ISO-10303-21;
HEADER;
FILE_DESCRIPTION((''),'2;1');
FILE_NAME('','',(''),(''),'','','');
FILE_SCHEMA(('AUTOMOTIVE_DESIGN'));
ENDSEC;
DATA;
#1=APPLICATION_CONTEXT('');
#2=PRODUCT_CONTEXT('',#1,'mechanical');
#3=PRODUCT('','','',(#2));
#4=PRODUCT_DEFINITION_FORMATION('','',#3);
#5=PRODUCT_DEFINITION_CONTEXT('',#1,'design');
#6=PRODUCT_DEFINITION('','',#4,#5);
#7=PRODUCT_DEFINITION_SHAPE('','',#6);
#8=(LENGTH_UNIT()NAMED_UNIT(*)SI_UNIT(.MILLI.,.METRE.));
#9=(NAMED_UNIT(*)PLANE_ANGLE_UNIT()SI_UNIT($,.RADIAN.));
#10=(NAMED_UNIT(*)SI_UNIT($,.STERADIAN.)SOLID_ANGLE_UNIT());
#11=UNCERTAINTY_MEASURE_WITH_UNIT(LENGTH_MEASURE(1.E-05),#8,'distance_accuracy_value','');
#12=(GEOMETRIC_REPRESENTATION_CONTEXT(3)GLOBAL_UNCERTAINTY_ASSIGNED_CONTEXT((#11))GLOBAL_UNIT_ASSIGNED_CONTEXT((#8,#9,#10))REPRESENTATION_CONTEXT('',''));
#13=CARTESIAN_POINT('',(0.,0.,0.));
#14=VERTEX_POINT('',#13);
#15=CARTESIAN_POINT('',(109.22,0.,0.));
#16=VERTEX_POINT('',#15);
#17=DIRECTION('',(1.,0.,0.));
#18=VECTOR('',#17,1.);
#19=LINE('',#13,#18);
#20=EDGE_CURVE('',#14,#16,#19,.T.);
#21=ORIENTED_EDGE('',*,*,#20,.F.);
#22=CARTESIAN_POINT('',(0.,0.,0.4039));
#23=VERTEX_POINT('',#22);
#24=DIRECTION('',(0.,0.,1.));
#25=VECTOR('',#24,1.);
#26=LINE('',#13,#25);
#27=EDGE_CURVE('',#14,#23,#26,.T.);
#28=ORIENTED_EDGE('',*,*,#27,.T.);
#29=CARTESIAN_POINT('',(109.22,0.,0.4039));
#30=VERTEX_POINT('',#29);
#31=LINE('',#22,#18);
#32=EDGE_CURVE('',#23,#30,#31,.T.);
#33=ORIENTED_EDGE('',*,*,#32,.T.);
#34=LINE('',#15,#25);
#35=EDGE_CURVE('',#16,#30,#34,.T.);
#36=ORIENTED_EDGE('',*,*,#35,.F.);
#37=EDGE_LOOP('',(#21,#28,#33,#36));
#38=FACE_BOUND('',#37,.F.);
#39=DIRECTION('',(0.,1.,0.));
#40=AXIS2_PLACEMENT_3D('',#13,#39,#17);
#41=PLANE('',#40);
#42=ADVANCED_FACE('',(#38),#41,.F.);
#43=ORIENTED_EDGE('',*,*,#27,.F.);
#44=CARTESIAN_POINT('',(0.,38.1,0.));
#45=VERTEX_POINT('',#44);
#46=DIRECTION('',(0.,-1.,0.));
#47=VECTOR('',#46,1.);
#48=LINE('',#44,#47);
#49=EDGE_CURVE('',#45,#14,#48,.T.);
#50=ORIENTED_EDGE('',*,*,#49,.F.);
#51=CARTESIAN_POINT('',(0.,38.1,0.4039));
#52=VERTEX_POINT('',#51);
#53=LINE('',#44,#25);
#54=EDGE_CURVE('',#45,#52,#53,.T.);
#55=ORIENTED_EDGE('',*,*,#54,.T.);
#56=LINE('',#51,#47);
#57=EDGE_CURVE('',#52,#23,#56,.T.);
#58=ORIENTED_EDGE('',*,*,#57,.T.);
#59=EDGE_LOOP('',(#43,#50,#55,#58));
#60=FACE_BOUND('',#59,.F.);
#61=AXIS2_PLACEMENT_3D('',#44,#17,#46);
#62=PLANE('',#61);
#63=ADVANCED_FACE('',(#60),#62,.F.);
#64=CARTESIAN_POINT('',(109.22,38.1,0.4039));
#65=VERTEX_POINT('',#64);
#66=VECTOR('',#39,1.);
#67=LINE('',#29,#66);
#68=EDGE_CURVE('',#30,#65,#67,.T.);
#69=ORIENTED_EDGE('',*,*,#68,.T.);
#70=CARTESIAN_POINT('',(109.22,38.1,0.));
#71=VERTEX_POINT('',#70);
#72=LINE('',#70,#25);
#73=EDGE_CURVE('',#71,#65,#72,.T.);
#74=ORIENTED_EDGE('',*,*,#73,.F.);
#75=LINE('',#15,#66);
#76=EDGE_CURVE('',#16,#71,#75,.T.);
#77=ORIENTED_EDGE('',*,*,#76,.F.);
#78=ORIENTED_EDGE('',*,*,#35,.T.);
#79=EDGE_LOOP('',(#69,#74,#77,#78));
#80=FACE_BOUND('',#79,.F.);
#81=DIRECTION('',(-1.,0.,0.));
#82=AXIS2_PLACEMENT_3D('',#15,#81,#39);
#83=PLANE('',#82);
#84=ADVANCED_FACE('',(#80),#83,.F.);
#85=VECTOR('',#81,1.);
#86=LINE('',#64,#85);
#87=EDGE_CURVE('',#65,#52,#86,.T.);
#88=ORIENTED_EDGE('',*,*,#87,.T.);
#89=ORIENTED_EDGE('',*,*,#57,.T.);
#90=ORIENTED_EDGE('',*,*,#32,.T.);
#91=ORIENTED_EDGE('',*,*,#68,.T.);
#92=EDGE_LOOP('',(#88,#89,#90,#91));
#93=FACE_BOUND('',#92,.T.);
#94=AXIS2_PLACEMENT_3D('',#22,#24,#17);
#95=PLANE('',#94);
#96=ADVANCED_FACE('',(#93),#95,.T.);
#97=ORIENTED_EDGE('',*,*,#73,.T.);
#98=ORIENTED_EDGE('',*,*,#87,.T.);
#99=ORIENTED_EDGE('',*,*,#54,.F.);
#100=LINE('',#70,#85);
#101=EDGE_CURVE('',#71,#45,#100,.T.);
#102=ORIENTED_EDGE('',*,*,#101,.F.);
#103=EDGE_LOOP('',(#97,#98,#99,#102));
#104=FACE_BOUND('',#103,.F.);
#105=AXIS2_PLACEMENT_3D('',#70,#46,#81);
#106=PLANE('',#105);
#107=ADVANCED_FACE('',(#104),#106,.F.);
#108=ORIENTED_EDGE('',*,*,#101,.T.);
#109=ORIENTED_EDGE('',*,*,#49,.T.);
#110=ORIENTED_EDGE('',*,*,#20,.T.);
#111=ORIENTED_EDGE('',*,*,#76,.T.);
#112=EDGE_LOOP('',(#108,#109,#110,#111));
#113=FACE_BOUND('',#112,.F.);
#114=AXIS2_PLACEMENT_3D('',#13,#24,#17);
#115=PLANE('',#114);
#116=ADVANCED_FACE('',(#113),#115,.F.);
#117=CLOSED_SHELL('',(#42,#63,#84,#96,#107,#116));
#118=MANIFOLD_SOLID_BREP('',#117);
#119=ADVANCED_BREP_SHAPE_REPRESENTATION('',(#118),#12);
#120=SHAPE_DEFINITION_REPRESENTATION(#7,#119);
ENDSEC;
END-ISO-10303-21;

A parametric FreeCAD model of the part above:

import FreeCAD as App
import Part
import Sketcher
from FreeCAD import Vector
Q = App.Units.Quantity

doc = App.newDocument("Part")
body = doc.addObject("PartDesign::Body", "Body")

sketch1 = doc.addObject("Sketcher::SketchObject", "Sketch")
body.addObject(sketch1)
sketch1.AttachmentSupport = (doc.XY_Plane, [""])
sketch1.MapMode = "FlatFace"
sketch1.addGeometry([
    Part.LineSegment(Vector(0, 38, 0), Vector(0, 0, 0)),
    Part.LineSegment(Vector(0, 0, 0), Vector(109, 0, 0)),
    Part.LineSegment(Vector(109, 0, 0), Vector(109, 38, 0)),
    Part.LineSegment(Vector(109, 38, 0), Vector(0, 38, 0)),
], False)
sketch1.addConstraint([
    Sketcher.Constraint("Coincident", 0, 2, 1, 1),
    Sketcher.Constraint("Coincident", 1, 2, 2, 1),
    Sketcher.Constraint("Coincident", 2, 2, 3, 1),
    Sketcher.Constraint("Coincident", 3, 2, 0, 1),
    Sketcher.Constraint("Vertical", 0),
    Sketcher.Constraint("Horizontal", 1),
    Sketcher.Constraint("Vertical", 2),
    Sketcher.Constraint("Horizontal", 3),
    Sketcher.Constraint("Coincident", 0, 2, -1, 1),
    Sketcher.Constraint("DistanceX", 1, 1, 1, 2, Q("4.3 in")),
    Sketcher.Constraint("DistanceY", 0, 2, 0, 1, Q("1.5 in")),
])
pad1 = doc.addObject("PartDesign::Pad", "Pad")
body.addObject(pad1)
pad1.Profile = sketch1
pad1.Length = Q("0.0159016 in")

doc.recompute()
